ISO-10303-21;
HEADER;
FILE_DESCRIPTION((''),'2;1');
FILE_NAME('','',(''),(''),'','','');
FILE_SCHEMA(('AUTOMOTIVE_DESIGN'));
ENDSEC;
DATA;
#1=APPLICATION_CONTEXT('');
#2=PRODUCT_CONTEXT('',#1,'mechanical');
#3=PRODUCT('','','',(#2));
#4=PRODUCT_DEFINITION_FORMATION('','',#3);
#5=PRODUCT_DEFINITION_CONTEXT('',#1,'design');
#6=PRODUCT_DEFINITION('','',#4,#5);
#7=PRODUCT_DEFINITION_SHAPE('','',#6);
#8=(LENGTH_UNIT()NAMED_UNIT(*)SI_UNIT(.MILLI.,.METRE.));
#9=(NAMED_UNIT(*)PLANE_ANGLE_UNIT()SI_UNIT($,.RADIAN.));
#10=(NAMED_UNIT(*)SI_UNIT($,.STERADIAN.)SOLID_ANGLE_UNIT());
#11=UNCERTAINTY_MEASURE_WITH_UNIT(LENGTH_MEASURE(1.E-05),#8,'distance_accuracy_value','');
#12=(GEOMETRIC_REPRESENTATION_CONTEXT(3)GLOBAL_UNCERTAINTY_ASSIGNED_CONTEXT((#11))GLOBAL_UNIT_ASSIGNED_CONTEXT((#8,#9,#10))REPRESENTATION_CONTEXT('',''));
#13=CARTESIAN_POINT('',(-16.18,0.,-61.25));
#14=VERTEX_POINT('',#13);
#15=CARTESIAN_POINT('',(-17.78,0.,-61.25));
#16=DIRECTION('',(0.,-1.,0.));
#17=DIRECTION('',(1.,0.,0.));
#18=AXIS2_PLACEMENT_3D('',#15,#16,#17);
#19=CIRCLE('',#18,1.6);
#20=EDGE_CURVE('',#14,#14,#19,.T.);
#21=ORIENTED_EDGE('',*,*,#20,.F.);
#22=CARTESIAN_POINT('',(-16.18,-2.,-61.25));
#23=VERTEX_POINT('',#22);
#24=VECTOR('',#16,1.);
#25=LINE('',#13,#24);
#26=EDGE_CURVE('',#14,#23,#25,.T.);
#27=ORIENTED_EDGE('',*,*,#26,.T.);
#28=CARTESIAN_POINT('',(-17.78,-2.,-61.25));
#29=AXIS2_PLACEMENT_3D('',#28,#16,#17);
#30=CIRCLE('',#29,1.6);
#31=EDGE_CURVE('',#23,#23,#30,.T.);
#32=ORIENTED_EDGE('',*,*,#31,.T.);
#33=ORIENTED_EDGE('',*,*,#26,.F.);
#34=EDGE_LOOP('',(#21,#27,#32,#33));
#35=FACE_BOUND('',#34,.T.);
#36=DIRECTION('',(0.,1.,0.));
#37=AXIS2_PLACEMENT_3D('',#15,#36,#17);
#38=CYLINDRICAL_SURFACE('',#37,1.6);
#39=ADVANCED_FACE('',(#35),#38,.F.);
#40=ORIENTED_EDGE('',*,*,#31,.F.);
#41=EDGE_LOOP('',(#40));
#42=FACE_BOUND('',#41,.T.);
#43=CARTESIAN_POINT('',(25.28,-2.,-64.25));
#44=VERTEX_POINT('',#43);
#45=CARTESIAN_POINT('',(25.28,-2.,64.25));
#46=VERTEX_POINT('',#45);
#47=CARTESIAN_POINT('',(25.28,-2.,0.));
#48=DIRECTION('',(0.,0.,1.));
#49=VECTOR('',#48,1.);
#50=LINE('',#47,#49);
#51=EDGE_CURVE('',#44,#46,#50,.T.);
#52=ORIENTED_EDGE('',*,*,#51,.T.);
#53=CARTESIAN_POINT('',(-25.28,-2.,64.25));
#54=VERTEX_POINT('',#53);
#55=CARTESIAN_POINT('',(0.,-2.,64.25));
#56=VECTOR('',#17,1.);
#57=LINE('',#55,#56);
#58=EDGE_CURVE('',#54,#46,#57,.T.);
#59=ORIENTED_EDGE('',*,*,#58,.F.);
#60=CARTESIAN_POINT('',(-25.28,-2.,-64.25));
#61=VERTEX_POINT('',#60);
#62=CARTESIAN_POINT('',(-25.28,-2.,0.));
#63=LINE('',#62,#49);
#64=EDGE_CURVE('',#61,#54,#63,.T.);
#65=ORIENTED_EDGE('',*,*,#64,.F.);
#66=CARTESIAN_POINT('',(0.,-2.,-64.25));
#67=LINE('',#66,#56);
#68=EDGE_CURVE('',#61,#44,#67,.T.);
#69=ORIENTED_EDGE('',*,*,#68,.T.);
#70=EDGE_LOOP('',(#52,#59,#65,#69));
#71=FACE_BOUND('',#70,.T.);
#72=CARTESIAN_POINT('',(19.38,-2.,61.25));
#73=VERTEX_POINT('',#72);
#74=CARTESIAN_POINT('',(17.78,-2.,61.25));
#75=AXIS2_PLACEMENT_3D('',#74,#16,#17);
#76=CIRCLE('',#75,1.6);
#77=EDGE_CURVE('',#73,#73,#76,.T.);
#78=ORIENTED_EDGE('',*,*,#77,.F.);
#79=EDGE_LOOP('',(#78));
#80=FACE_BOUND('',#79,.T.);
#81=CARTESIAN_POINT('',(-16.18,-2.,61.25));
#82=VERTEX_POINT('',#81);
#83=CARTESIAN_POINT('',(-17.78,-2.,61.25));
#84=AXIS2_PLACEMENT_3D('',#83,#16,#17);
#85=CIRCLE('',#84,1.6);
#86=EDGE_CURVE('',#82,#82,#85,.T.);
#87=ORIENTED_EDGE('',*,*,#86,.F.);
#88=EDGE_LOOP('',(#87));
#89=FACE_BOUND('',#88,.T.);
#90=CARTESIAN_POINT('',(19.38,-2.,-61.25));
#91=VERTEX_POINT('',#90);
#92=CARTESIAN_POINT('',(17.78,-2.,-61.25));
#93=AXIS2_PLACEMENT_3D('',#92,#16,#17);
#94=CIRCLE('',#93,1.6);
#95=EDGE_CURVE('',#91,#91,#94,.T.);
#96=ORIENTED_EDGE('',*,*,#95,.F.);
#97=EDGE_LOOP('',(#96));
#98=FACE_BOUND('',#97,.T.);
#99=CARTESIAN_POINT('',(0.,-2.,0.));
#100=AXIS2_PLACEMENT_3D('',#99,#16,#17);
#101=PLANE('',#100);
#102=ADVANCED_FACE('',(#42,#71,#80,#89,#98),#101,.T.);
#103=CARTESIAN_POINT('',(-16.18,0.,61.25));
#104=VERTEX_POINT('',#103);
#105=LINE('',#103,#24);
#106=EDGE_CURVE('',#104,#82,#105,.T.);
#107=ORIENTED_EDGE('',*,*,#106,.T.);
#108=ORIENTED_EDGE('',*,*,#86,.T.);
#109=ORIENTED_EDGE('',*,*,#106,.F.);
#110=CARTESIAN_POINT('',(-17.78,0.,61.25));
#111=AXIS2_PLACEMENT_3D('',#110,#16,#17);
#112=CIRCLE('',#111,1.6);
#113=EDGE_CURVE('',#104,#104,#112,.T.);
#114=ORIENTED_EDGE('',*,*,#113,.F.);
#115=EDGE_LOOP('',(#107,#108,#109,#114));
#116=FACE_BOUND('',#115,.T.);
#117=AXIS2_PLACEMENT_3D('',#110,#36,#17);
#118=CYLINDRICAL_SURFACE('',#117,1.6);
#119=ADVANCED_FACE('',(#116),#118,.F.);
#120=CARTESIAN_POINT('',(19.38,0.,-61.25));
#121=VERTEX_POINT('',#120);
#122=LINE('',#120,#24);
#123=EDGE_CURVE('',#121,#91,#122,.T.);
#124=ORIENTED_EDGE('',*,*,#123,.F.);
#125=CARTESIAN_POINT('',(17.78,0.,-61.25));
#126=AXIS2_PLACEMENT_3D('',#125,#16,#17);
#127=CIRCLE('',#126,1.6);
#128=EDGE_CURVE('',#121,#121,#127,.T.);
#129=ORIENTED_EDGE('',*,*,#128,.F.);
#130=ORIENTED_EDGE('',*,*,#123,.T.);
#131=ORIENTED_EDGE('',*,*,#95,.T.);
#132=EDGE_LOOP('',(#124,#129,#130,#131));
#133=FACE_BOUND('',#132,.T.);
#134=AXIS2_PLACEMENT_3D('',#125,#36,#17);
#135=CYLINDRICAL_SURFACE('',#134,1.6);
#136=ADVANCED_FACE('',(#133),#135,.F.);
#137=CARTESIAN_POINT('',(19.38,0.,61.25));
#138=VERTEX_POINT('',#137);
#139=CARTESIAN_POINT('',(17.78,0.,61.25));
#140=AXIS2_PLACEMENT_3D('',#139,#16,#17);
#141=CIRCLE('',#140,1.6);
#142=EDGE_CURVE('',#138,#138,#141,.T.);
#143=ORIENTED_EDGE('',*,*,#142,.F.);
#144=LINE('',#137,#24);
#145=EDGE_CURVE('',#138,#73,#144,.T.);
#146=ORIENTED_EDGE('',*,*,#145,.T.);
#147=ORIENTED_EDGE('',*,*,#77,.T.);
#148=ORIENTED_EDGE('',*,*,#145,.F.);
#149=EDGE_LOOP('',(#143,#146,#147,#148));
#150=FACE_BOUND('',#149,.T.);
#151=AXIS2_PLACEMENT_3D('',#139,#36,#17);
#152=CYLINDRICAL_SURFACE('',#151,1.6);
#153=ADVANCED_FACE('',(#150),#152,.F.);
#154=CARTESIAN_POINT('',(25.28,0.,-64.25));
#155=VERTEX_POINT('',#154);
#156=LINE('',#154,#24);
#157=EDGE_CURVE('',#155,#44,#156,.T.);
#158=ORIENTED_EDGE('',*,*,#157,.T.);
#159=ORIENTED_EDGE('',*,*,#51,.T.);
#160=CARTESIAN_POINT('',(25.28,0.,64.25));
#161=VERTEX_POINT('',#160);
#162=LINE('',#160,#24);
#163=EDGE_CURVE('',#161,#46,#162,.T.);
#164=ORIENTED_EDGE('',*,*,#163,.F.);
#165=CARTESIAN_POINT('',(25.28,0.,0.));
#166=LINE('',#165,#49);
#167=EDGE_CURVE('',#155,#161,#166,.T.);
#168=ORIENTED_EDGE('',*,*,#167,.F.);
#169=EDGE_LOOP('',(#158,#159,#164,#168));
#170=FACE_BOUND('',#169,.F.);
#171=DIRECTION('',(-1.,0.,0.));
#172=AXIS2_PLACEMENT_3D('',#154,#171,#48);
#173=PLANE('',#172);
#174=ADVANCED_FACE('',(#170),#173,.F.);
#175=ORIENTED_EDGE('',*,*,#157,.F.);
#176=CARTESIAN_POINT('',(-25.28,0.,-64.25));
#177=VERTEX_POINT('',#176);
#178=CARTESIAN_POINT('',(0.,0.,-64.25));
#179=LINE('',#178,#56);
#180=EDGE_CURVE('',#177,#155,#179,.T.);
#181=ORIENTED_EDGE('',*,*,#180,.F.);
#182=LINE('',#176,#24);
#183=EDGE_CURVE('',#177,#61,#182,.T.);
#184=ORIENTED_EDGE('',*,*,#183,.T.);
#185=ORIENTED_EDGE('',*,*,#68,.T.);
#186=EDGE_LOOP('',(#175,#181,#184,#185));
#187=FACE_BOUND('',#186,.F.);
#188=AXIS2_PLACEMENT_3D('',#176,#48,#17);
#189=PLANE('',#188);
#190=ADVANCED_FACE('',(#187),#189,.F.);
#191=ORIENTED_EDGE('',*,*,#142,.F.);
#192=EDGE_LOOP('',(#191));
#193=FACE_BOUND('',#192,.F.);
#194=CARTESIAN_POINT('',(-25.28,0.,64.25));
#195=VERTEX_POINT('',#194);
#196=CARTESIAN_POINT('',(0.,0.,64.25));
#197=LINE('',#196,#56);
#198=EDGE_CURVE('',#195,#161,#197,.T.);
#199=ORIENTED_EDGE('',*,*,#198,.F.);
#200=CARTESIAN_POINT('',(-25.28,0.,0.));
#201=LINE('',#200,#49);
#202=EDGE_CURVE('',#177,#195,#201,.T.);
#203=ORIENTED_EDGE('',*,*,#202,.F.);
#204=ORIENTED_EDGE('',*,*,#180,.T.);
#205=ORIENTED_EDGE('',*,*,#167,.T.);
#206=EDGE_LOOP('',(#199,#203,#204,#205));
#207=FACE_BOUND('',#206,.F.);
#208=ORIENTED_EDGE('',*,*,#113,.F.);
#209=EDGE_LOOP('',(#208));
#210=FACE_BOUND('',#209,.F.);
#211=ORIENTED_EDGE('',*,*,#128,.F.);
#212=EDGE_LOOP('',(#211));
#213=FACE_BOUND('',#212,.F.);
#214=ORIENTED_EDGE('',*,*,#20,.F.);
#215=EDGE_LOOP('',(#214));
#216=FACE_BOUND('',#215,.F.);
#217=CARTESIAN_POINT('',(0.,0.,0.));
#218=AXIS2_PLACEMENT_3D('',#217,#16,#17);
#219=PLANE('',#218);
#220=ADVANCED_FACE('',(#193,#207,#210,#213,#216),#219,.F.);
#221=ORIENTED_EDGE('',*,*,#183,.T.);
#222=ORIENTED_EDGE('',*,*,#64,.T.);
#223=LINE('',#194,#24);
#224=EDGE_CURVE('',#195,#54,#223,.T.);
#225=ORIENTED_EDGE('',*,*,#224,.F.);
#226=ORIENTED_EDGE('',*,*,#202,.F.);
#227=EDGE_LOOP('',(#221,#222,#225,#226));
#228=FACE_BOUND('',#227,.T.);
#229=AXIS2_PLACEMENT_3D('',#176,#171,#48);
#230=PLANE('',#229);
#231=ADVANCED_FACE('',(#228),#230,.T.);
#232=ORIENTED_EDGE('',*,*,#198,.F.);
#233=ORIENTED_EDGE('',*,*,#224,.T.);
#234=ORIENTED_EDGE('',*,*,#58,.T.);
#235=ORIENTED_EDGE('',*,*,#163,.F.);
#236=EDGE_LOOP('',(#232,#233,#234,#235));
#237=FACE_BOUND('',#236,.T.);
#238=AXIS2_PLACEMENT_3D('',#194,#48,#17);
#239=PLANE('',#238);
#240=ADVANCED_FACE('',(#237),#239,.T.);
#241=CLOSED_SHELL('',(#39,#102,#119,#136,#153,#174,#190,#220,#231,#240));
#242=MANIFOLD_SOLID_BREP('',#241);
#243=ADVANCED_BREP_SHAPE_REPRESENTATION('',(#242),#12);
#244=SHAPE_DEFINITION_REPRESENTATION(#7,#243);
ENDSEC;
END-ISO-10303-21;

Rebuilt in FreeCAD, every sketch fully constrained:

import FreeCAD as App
import Part
import Sketcher
Q = App.Units.Quantity


def add_polygon(sketch, points):
    """Adds a closed chain of lines whose ends are joined by coincident constraints."""
    first, n = sketch.GeometryCount, len(points)
    for a, b in zip(points, points[1:] + points[:1]):
        sketch.addGeometry(Part.LineSegment(App.Vector(*a, 0), App.Vector(*b, 0)), False)
    for i in range(n):
        sketch.addConstraint(Sketcher.Constraint("Coincident", first + i, 2, first + (i + 1) % n, 1))

doc = App.newDocument("Part")
body = doc.addObject("PartDesign::Body", "Body")

# Sketch on XZ plane
sketch1 = body.newObject("Sketcher::SketchObject", "Sketch")
sketch1.AttachmentSupport = (doc.getObject("XZ_Plane"), [""])
sketch1.MapMode = "FlatFace"
add_polygon(sketch1, [(-25.3, 64.2), (-25.3, -64.2), (25.3, -64.2), (25.3, 64.2)])  # lines 0-3
sketch1.addGeometry(Part.Circle(App.Vector(-17.8, -61.2, 0), App.Vector(0, 0, 1), 1.6), False)  # 4
sketch1.addGeometry(Part.Circle(App.Vector(17.8, -61.2, 0), App.Vector(0, 0, 1), 1.6), False)  # 5
sketch1.addGeometry(Part.Circle(App.Vector(-17.8, 61.2, 0), App.Vector(0, 0, 1), 1.6), False)  # 6
sketch1.addGeometry(Part.Circle(App.Vector(17.8, 61.2, 0), App.Vector(0, 0, 1), 1.6), False)  # 7
sketch1.addConstraint([
    Sketcher.Constraint("Vertical", 0),
    Sketcher.Constraint("Horizontal", 1),
    Sketcher.Constraint("Vertical", 2),
    Sketcher.Constraint("Horizontal", 3),
    Sketcher.Constraint("Equal", 4, 5),
    Sketcher.Constraint("Equal", 5, 6),
    Sketcher.Constraint("Equal", 6, 7),
    Sketcher.Constraint("Symmetric", 5, 3, 6, 3, -1, 1),
    Sketcher.Constraint("Symmetric", 4, 3, 7, 3, -1, 1),
    Sketcher.Constraint("Symmetric", 0, 2, 2, 2, -1, 1),
    Sketcher.Constraint("Symmetric", 4, 3, 5, 3, -2),
    Sketcher.Constraint("Diameter", 4, Q("3.2 mm")),
    Sketcher.Constraint("DistanceY", 0, 2, 0, 1, Q("128.5 mm")),
    Sketcher.Constraint("DistanceY", 0, 2, 4, 3, Q("3 mm")),
    Sketcher.Constraint("DistanceX", 1, 1, 1, 2, Q("50.56 mm")),
    Sketcher.Constraint("DistanceX", 0, 2, 4, 3, Q("7.5 mm")),
])
pad1 = body.newObject("PartDesign::Pad", "Pad")
pad1.Profile = sketch1
pad1.Length = 2

doc.recompute()
